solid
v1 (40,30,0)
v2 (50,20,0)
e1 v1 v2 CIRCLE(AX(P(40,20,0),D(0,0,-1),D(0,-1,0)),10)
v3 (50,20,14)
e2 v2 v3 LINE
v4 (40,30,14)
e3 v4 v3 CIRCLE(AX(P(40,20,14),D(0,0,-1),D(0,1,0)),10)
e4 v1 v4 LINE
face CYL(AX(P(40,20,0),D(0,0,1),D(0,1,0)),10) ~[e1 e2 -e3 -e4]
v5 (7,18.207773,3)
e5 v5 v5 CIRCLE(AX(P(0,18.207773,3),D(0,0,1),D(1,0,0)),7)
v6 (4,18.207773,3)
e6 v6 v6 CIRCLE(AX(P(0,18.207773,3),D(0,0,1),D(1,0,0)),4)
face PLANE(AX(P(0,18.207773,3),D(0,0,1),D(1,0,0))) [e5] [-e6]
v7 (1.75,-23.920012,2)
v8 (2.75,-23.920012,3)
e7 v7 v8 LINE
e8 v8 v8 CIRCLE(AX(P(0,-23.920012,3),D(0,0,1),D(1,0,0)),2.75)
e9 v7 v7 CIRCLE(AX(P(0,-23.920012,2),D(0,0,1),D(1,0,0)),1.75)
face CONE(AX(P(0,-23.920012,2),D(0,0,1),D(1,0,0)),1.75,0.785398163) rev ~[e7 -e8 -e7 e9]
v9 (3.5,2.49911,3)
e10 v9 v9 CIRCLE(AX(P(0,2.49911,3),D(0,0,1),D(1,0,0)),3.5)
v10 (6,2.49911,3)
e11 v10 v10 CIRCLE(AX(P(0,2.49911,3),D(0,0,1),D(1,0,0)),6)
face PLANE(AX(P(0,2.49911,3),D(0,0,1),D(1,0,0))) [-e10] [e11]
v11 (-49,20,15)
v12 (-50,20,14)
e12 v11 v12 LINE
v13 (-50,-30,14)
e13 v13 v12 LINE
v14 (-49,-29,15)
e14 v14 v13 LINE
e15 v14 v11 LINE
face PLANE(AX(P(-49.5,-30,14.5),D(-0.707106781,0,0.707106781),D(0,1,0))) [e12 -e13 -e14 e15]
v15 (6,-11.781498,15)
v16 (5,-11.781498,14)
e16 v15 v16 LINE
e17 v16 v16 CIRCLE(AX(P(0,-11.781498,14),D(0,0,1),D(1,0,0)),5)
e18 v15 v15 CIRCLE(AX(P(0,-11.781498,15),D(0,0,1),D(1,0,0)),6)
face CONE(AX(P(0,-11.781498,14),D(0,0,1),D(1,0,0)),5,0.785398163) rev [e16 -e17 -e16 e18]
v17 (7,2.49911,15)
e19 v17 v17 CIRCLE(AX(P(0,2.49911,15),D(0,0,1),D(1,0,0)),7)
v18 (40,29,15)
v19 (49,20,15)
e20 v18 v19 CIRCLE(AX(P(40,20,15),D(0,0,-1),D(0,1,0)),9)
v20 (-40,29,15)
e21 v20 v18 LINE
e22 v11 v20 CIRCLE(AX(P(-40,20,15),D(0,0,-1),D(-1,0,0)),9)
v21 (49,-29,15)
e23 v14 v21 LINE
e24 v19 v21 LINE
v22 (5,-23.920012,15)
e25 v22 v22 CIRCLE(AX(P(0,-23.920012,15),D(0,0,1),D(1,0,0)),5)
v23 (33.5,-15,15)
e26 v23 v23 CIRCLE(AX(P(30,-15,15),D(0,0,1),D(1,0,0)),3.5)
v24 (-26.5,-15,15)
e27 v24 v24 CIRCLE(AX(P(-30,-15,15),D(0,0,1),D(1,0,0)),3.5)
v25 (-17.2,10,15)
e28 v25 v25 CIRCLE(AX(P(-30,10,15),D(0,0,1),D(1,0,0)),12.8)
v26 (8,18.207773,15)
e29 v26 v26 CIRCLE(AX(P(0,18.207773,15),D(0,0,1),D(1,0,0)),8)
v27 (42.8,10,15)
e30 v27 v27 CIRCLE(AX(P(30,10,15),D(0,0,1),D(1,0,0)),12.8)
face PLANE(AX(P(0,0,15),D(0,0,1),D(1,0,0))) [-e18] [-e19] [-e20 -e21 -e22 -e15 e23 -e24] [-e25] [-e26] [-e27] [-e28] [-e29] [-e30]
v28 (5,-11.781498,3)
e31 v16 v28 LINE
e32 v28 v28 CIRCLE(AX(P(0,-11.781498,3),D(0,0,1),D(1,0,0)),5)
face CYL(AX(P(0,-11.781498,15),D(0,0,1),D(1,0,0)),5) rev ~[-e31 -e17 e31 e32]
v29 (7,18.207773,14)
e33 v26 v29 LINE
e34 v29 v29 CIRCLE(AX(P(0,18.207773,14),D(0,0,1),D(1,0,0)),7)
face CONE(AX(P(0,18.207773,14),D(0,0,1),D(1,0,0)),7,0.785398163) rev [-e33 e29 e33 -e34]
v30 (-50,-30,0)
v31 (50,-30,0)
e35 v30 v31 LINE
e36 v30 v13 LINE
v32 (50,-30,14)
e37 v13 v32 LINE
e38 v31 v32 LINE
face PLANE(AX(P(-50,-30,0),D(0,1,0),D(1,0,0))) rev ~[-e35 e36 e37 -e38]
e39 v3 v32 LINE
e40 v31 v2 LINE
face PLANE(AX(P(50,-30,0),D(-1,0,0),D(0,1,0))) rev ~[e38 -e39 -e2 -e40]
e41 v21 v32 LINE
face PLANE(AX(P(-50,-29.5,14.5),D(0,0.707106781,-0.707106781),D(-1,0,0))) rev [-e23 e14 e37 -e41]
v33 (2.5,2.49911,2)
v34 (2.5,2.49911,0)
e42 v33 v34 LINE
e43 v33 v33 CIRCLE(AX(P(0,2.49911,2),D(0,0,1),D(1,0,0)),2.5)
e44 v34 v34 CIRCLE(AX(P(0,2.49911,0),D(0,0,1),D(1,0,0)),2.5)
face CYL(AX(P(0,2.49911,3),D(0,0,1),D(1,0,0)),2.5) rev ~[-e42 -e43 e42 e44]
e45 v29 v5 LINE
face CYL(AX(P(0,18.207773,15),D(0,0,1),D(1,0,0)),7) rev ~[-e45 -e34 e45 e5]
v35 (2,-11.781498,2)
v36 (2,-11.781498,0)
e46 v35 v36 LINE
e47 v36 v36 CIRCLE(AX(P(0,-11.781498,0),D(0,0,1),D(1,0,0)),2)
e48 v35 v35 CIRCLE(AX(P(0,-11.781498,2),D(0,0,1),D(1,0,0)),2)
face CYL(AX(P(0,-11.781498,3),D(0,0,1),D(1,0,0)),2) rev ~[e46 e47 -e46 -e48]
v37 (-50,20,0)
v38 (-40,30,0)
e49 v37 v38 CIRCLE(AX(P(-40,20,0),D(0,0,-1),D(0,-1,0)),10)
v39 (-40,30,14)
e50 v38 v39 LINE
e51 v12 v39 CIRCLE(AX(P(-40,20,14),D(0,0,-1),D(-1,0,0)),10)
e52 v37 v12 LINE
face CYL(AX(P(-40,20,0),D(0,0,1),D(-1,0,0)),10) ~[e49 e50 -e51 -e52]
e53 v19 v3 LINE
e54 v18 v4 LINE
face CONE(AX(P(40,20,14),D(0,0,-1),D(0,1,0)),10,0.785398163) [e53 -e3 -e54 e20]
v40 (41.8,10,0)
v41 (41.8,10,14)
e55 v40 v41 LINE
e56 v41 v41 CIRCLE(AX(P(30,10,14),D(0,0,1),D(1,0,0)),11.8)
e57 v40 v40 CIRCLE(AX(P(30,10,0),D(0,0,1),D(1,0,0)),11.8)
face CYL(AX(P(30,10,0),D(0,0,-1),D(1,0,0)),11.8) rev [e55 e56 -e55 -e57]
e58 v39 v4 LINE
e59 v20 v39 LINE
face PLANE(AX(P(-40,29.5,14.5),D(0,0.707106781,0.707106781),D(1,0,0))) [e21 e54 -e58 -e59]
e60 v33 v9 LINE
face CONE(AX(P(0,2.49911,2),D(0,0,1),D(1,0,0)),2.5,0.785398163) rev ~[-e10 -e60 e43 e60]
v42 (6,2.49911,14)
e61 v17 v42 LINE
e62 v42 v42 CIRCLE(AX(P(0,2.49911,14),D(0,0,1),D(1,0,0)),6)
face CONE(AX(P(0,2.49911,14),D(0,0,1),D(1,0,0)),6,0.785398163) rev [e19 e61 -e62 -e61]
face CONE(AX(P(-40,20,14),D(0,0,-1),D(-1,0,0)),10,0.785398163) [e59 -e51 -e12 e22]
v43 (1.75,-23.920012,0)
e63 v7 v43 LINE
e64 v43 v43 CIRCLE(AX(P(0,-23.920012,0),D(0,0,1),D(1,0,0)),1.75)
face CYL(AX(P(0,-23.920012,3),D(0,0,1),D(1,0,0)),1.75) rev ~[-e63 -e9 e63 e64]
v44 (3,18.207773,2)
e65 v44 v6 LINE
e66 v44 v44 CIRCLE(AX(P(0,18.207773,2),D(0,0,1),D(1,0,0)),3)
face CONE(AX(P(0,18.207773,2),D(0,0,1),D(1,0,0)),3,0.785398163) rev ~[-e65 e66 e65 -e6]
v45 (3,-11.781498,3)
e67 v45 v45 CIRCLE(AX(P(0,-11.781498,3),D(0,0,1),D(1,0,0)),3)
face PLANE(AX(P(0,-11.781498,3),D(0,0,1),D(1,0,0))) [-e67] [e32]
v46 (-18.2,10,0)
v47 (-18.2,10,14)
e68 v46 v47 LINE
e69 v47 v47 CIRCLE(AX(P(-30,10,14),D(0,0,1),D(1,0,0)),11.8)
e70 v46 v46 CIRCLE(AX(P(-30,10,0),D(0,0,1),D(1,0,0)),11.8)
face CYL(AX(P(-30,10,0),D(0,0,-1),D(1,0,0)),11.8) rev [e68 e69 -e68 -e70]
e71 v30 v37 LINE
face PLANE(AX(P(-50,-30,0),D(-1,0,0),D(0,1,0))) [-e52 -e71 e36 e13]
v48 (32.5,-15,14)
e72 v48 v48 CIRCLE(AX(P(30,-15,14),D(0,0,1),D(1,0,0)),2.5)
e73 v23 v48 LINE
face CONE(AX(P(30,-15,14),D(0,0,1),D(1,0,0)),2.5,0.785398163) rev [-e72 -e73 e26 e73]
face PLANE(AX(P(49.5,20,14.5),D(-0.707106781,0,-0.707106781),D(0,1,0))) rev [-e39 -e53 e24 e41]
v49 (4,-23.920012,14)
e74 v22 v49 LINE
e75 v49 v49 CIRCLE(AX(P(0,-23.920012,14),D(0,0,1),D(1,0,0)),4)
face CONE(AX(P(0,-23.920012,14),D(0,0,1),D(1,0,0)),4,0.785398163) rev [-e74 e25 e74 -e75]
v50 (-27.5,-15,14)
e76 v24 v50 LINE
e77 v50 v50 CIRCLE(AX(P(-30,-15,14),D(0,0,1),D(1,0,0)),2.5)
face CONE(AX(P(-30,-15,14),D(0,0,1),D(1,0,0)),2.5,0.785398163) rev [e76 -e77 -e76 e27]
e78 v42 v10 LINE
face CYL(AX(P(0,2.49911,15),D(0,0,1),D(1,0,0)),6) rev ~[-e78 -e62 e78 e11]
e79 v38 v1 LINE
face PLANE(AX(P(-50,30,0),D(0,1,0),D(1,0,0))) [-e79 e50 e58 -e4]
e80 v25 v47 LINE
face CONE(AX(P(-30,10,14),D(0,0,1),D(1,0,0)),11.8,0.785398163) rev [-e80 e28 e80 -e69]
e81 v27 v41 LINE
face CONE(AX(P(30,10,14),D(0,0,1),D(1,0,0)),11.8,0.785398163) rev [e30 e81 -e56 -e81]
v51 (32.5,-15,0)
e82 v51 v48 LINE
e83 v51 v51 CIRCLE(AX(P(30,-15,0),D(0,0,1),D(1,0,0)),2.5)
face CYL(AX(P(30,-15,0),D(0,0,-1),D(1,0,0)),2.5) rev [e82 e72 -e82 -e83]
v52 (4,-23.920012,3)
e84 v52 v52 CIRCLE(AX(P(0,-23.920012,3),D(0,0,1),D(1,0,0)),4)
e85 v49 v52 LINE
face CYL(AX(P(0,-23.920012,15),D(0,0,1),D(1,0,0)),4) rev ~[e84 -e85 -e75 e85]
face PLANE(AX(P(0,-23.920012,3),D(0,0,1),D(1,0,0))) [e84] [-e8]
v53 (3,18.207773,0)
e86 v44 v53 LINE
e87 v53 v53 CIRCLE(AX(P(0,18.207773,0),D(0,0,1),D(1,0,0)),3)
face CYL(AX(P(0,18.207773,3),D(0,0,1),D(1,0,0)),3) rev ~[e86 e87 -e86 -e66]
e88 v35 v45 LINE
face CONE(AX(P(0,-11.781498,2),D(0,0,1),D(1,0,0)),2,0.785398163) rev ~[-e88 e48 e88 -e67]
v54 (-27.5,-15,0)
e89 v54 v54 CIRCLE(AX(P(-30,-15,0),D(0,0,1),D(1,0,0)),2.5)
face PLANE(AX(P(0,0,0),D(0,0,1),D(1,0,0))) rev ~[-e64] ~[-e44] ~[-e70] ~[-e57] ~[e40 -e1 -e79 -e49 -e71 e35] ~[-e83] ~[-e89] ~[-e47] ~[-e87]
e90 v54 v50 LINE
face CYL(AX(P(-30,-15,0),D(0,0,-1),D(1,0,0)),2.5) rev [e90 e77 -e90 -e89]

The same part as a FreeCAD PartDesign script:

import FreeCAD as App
import Part
import Sketcher
from FreeCAD import Vector


def edges_at(feature, points):
    """Names of the edges that pass closest to the given points."""
    edges = feature.Shape.Edges
    near = lambda p: min(range(len(edges)), key=lambda i: edges[i].distToShape(Part.Vertex(*p))[0])
    return sorted({f"Edge{near(p) + 1}" for p in points})

doc = App.newDocument("Part")
params = doc.addObject("Spreadsheet::Sheet", "Params")
for row, (alias, value) in enumerate([
    ("sketch1_diameter", "5 mm"),
    ("sketch1_diameter2", "23.6 mm"),
    ("sketch1_width", "100 mm"),
    ("sketch1_height", "60 mm"),
    ("pad1_length", "15 mm"),
    ("fillet_radius", "10 mm"),
    ("sketch2_diameter", "14 mm"),
    ("sketch2_diameter2", "12 mm"),
    ("sketch2_diameter3", "10 mm"),
    ("sketch2_diameter4", "8 mm"),
    ("pocket1_length", "12 mm"),
    ("sketch3_diameter", "6 mm"),
    ("sketch3_diameter2", "5 mm"),
    ("sketch3_diameter3", "4 mm"),
    ("sketch3_diameter4", "3.5 mm"),
    ("pocket2_length", "5 mm"),
    ("chamfer_size", "1 mm"),
    ("chamfer2_size", "1 mm"),
], start=1):
    params.set(f"A{row}", alias)
    params.set(f"B{row}", "=" + value)
    params.setAlias(f"B{row}", alias)

body = doc.addObject("PartDesign::Body", "Body")

sketch1 = body.newObject("Sketcher::SketchObject", "Sketch")
sketch1.AttachmentSupport = (doc.getObject("XY_Plane"), [""])
sketch1.MapMode = "FlatFace"
sketch1.addGeometry(Part.LineSegment(Vector(-50, 30, 0), Vector(-50, -30, 0)), False)
sketch1.addGeometry(Part.LineSegment(Vector(-50, -30, 0), Vector(50, -30, 0)), False)
sketch1.addGeometry(Part.LineSegment(Vector(50, -30, 0), Vector(50, 30, 0)), False)
sketch1.addGeometry(Part.LineSegment(Vector(50, 30, 0), Vector(-50, 30, 0)), False)
sketch1.addGeometry(Part.Circle(Vector(-30, -15, 0), Vector(0, 0, 1), 2.5), False)
sketch1.addGeometry(Part.Circle(Vector(30, -15, 0), Vector(0, 0, 1), 2.5), False)
sketch1.addGeometry(Part.Circle(Vector(-30, 10, 0), Vector(0, 0, 1), 11.8), False)
sketch1.addGeometry(Part.Circle(Vector(30, 10, 0), Vector(0, 0, 1), 11.8), False)
sketch1.addConstraint(Sketcher.Constraint("Coincident", 0, 2, 1, 1))
sketch1.addConstraint(Sketcher.Constraint("Coincident", 1, 2, 2, 1))
sketch1.addConstraint(Sketcher.Constraint("Coincident", 2, 2, 3, 1))
sketch1.addConstraint(Sketcher.Constraint("Coincident", 3, 2, 0, 1))
sketch1.addConstraint(Sketcher.Constraint("Vertical", 0))
sketch1.addConstraint(Sketcher.Constraint("Horizontal", 1))
sketch1.addConstraint(Sketcher.Constraint("Vertical", 2))
sketch1.addConstraint(Sketcher.Constraint("Horizontal", 3))
sketch1.addConstraint(Sketcher.Constraint("Equal", 4, 5))
sketch1.addConstraint(Sketcher.Constraint("Equal", 6, 7))
sketch1.addConstraint(Sketcher.Constraint("Symmetric", 0, 2, 2, 2, -1, 1))
sketch1.addConstraint(Sketcher.Constraint("Symmetric", 4, 3, 5, 3, -2))
sketch1.addConstraint(Sketcher.Constraint("Symmetric", 6, 3, 7, 3, -2))
sketch1.addConstraint(Sketcher.Constraint("Vertical", 4, 3, 6, 3))
sketch1.addConstraint(Sketcher.Constraint("Diameter", 4, 5.0))
sketch1.addConstraint(Sketcher.Constraint("Diameter", 6, 23.6))
sketch1.addConstraint(Sketcher.Constraint("DistanceX", 1, 1, 1, 2, 100.0))
sketch1.addConstraint(Sketcher.Constraint("DistanceY", 0, 2, 0, 1, 60.0))
sketch1.addConstraint(Sketcher.Constraint("DistanceX", 4, 3, -1, 1, 30.0))
sketch1.addConstraint(Sketcher.Constraint("DistanceY", 4, 3, -1, 1, 15.0))
sketch1.addConstraint(Sketcher.Constraint("DistanceY", -1, 1, 6, 3, 10.0))
sketch1.setExpression("Constraints[14]", "Params.sketch1_diameter")
sketch1.setExpression("Constraints[15]", "Params.sketch1_diameter2")
sketch1.setExpression("Constraints[16]", "Params.sketch1_width")
sketch1.setExpression("Constraints[17]", "Params.sketch1_height")
pad1 = body.newObject("PartDesign::Pad", "Pad")
pad1.Profile = sketch1
pad1.setExpression("Length", "Params.pad1_length")
doc.recompute()

fillet = body.newObject("PartDesign::Fillet", "Fillet")
fillet.Base = (pad1, edges_at(pad1, [(-50, 30, 7.5), (50, 30, 7.5)]))
fillet.setExpression("Radius", "Params.fillet_radius")

sketch2 = body.newObject("Sketcher::SketchObject", "Sketch001")
sketch2.AttachmentSupport = (doc.getObject("XY_Plane"), [""])
sketch2.MapMode = "FlatFace"
sketch2.AttachmentOffset = App.Placement(Vector(0, 0, 15), App.Rotation())
sketch2.addGeometry(Part.Circle(Vector(0, 18.2, 0), Vector(0, 0, 1), 7), False)
sketch2.addGeometry(Part.Circle(Vector(0, 2.5, 0), Vector(0, 0, 1), 6), False)
sketch2.addGeometry(Part.Circle(Vector(0, -11.8, 0), Vector(0, 0, 1), 5), False)
sketch2.addGeometry(Part.Circle(Vector(0, -23.9, 0), Vector(0, 0, 1), 4), False)
sketch2.addConstraint(Sketcher.Constraint("PointOnObject", 0, 3, -2))
sketch2.addConstraint(Sketcher.Constraint("PointOnObject", 1, 3, -2))
sketch2.addConstraint(Sketcher.Constraint("PointOnObject", 2, 3, -2))
sketch2.addConstraint(Sketcher.Constraint("PointOnObject", 3, 3, -2))
sketch2.addConstraint(Sketcher.Constraint("Diameter", 0, 14.0))
sketch2.addConstraint(Sketcher.Constraint("Diameter", 1, 12.0))
sketch2.addConstraint(Sketcher.Constraint("Diameter", 2, 10.0))
sketch2.addConstraint(Sketcher.Constraint("Diameter", 3, 8.0))
sketch2.addConstraint(Sketcher.Constraint("DistanceY", -1, 1, 1, 3, 2.49911))
sketch2.addConstraint(Sketcher.Constraint("DistanceY", 3, 3, -1, 1, 23.920012))
sketch2.addConstraint(Sketcher.Constraint("DistanceY", 2, 3, 0, 3, 29.989271))
sketch2.addConstraint(Sketcher.Constraint("DistanceY", -1, 1, 0, 3, 18.207773))
sketch2.setExpression("Constraints[4]", "Params.sketch2_diameter")
sketch2.setExpression("Constraints[5]", "Params.sketch2_diameter2")
sketch2.setExpression("Constraints[6]", "Params.sketch2_diameter3")
sketch2.setExpression("Constraints[7]", "Params.sketch2_diameter4")
pocket1 = body.newObject("PartDesign::Pocket", "Pocket")
pocket1.Profile = sketch2
pocket1.setExpression("Length", "Params.pocket1_length")

sketch3 = body.newObject("Sketcher::SketchObject", "Sketch002")
sketch3.AttachmentSupport = (doc.getObject("XY_Plane"), [""])
sketch3.MapMode = "FlatFace"
sketch3.AttachmentOffset = App.Placement(Vector(0, 0, 3), App.Rotation())
sketch3.addGeometry(Part.Circle(Vector(0, 18.2, 0), Vector(0, 0, 1), 3), False)
sketch3.addGeometry(Part.Circle(Vector(0, 2.5, 0), Vector(0, 0, 1), 2.5), False)
sketch3.addGeometry(Part.Circle(Vector(0, -23.9, 0), Vector(0, 0, 1), 1.8), False)
sketch3.addGeometry(Part.Circle(Vector(0, -11.8, 0), Vector(0, 0, 1), 2), False)
sketch3.addConstraint(Sketcher.Constraint("PointOnObject", 0, 3, -2))
sketch3.addConstraint(Sketcher.Constraint("PointOnObject", 1, 3, -2))
sketch3.addConstraint(Sketcher.Constraint("PointOnObject", 2, 3, -2))
sketch3.addConstraint(Sketcher.Constraint("PointOnObject", 3, 3, -2))
sketch3.addConstraint(Sketcher.Constraint("Diameter", 0, 6.0))
sketch3.addConstraint(Sketcher.Constraint("Diameter", 1, 5.0))
sketch3.addConstraint(Sketcher.Constraint("Diameter", 3, 4.0))
sketch3.addConstraint(Sketcher.Constraint("Diameter", 2, 3.5))
sketch3.addConstraint(Sketcher.Constraint("DistanceY", -1, 1, 1, 3, 2.49911))
sketch3.addConstraint(Sketcher.Constraint("DistanceY", 2, 3, -1, 1, 23.920012))
sketch3.addConstraint(Sketcher.Constraint("DistanceY", 3, 3, 0, 3, 29.989271))
sketch3.addConstraint(Sketcher.Constraint("DistanceY", -1, 1, 0, 3, 18.207773))
sketch3.setExpression("Constraints[4]", "Params.sketch3_diameter")
sketch3.setExpression("Constraints[5]", "Params.sketch3_diameter2")
sketch3.setExpression("Constraints[6]", "Params.sketch3_diameter3")
sketch3.setExpression("Constraints[7]", "Params.sketch3_diameter4")
pocket2 = body.newObject("PartDesign::Pocket", "Pocket001")
pocket2.Profile = sketch3
pocket2.setExpression("Length", "Params.pocket2_length")
doc.recompute()

chamfer = body.newObject("PartDesign::Chamfer", "Chamfer")
chamfer.Base = (pocket2, edges_at(pocket2, [
    (0, 30, 15),
    (-47.071, 27.071, 15),
    (47.071, 27.071, 15),
    (-50, -5, 15),
    (50, -5, 15),
    (0, -30, 15),
    (-4, -23.92, 15),
    (-5, -11.781, 15),
    (-7, 18.208, 15),
    (-6, 2.499, 15),
    (-32.5, -15, 15),
    (-41.8, 10, 15),
    (18.2, 10, 15),
    (27.5, -15, 15),
]))
chamfer.setExpression("Size", "Params.chamfer_size")
doc.recompute()

chamfer2 = body.newObject("PartDesign::Chamfer", "Chamfer001")
chamfer2.Base = (chamfer, edges_at(chamfer, [
    (-3, 18.208, 3),
    (-2.5, 2.499, 3),
    (-2, -11.781, 3),
    (-1.75, -23.92, 3),
]))
chamfer2.setExpression("Size", "Params.chamfer2_size")

doc.recompute()
